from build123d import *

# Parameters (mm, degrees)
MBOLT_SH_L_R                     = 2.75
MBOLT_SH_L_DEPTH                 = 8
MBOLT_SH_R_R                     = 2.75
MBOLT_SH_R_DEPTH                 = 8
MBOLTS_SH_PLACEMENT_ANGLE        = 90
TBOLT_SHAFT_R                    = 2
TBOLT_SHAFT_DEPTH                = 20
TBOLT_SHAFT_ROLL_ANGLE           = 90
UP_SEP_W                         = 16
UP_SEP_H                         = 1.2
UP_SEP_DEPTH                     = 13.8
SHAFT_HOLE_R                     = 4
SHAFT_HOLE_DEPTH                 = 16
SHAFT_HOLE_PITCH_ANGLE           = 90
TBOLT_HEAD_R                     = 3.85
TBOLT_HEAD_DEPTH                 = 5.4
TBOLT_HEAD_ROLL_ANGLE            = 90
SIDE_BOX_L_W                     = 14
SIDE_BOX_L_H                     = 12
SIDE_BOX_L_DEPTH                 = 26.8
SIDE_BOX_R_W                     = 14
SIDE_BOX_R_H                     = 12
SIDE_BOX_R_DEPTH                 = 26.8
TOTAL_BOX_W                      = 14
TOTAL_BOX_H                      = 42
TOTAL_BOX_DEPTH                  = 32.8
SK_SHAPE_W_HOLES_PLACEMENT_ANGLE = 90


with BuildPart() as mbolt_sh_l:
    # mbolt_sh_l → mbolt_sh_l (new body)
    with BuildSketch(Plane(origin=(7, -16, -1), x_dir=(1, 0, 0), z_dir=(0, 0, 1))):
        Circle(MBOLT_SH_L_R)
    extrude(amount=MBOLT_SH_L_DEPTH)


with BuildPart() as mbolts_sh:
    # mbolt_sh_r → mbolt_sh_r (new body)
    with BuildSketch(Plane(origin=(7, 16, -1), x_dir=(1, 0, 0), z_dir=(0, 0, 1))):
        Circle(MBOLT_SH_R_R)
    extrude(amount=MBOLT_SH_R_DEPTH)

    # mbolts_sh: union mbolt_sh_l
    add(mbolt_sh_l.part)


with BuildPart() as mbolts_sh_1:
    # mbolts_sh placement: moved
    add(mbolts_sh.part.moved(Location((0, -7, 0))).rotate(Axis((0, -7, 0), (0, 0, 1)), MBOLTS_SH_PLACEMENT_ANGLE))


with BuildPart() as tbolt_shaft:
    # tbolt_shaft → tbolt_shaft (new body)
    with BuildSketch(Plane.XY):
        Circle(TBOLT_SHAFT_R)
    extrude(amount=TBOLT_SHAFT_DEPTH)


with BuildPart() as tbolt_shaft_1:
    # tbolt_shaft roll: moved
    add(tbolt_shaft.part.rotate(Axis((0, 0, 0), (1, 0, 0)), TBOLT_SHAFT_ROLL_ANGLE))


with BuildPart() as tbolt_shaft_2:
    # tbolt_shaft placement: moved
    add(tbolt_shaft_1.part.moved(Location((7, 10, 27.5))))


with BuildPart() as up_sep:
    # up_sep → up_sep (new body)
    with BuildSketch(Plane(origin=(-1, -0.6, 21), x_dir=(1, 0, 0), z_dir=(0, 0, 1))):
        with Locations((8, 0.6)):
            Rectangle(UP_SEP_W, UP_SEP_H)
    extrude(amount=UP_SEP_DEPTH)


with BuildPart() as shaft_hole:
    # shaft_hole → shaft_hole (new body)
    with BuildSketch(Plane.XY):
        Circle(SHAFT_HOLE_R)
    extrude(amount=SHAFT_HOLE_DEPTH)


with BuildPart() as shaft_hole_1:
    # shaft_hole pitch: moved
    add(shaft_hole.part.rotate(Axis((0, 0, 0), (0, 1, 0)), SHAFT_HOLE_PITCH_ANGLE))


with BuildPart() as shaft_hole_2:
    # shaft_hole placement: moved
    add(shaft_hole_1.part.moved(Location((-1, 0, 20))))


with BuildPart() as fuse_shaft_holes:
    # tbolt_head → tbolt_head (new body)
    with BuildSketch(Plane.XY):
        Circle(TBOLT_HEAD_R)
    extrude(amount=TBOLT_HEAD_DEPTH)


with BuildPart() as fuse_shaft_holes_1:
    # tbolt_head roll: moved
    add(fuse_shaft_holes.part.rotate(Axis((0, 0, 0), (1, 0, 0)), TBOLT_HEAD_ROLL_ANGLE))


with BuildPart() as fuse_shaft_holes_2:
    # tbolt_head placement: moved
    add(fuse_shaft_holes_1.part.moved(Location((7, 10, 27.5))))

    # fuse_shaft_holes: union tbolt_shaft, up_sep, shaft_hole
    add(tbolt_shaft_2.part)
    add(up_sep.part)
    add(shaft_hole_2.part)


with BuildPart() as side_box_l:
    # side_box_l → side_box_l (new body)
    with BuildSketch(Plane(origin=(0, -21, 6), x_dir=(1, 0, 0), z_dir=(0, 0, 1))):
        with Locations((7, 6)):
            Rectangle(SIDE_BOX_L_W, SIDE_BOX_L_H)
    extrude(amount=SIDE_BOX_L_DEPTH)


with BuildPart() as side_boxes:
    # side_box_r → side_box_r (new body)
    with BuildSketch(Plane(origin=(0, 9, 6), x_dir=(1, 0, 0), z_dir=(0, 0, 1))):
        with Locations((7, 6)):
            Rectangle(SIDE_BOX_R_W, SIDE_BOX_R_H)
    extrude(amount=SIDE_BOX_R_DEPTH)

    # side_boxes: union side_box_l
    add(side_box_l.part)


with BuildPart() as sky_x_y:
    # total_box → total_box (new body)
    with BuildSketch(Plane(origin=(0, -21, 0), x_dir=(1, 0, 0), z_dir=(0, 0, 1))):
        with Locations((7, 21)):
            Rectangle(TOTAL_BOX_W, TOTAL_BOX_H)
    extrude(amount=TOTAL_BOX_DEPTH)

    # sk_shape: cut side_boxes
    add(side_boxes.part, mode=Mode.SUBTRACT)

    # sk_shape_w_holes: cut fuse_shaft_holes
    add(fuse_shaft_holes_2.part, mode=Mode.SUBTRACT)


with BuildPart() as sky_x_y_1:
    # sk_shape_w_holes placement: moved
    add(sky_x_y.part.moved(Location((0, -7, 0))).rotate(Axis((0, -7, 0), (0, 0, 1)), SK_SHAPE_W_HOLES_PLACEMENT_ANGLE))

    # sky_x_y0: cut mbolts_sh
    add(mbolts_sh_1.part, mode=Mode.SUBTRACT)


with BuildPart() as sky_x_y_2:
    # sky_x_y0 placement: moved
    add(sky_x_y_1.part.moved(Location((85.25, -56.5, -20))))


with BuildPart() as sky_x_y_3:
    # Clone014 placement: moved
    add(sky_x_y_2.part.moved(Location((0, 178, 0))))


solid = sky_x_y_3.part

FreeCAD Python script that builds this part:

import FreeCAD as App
import Part
import Sketcher


def add_polygon(sketch, points):
    """Adds a closed chain of lines whose ends are joined by coincident constraints."""
    first, n = sketch.GeometryCount, len(points)
    for a, b in zip(points, points[1:] + points[:1]):
        sketch.addGeometry(Part.LineSegment(App.Vector(*a, 0), App.Vector(*b, 0)), False)
    for i in range(n):
        sketch.addConstraint(Sketcher.Constraint("Coincident", first + i, 2, first + (i + 1) % n, 1))

doc = App.newDocument("Part")
body = doc.addObject("PartDesign::Body", "Body")

# Sketch on XY plane
sketch1 = body.newObject("Sketcher::SketchObject", "Sketch")
sketch1.AttachmentSupport = (doc.getObject("XY_Plane"), [""])
sketch1.MapMode = "FlatFace"
sketch1.AttachmentOffset = App.Placement(App.Vector(0, 0, -1), App.Rotation())
sketch1.addGeometry(Part.Circle(App.Vector(7, -16, 0), App.Vector(0, 0, 1), 2.75), False)
sketch1.addConstraint([
    Sketcher.Constraint("Diameter", 0, 5.5),
    Sketcher.Constraint("DistanceX", -1, 1, 0, 3, 7.0),
    Sketcher.Constraint("DistanceY", 0, 3, -1, 1, 16.0),
])
pad1 = body.newObject("PartDesign::Pad", "Pad")
pad1.Profile = sketch1
pad1.Length = 8
body2 = doc.addObject("PartDesign::Body", "Body001")
body2.AllowCompound = True

# Sketch on XY plane
sketch2 = body2.newObject("Sketcher::SketchObject", "Sketch001")
sketch2.AttachmentSupport = (doc.getObject("XY_Plane001"), [""])
sketch2.MapMode = "FlatFace"
sketch2.AttachmentOffset = App.Placement(App.Vector(0, 0, -1), App.Rotation())
sketch2.addGeometry(Part.Circle(App.Vector(7, 16, 0), App.Vector(0, 0, 1), 2.75), False)
sketch2.addConstraint([
    Sketcher.Constraint("Diameter", 0, 5.5),
    Sketcher.Constraint("DistanceX", -1, 1, 0, 3, 7.0),
    Sketcher.Constraint("DistanceY", -1, 1, 0, 3, 16.0),
])
pad2 = body2.newObject("PartDesign::Pad", "Pad001")
pad2.Profile = sketch2
pad2.Length = 8
doc.recompute()

boolean = body2.newObject("PartDesign::Boolean", "Boolean")
boolean.Type = "Fuse"
boolean.addObjects([body])
body3 = doc.addObject("PartDesign::Body", "Body002")
body3.AllowCompound = True
doc.recompute()

body2.Placement = App.Placement(App.Vector(0, -7, 0), App.Rotation(App.Vector(0, 0, 1), 90))
boolean2 = body3.newObject("PartDesign::Boolean", "Boolean001")
boolean2.Type = "Fuse"
boolean2.addObjects([body2])
body4 = doc.addObject("PartDesign::Body", "Body003")

# Sketch on XY plane
sketch3 = body4.newObject("Sketcher::SketchObject", "Sketch002")
sketch3.AttachmentSupport = (doc.getObject("XY_Plane003"), [""])
sketch3.MapMode = "FlatFace"
sketch3.addGeometry(Part.Circle(App.Vector(0, 0, 0), App.Vector(0, 0, 1), 2), False)
sketch3.addConstraint([
    Sketcher.Constraint("Coincident", 0, 3, -1, 1),
    Sketcher.Constraint("Diameter", 0, 4.0),
])
pad3 = body4.newObject("PartDesign::Pad", "Pad002")
pad3.Profile = sketch3
pad3.Length = 20
body5 = doc.addObject("PartDesign::Body", "Body004")
doc.recompute()

body4.Placement = App.Placement(App.Vector(0, 0, 0), App.Rotation(App.Vector(1, 0, 0), 90))
boolean3 = body5.newObject("PartDesign::Boolean", "Boolean002")
boolean3.Type = "Fuse"
boolean3.addObjects([body4])
body6 = doc.addObject("PartDesign::Body", "Body005")
doc.recompute()

body5.Placement = App.Placement(App.Vector(7, 10, 27.5), App.Rotation(App.Vector(0, 0, 1), 0))
boolean4 = body6.newObject("PartDesign::Boolean", "Boolean003")
boolean4.Type = "Fuse"
boolean4.addObjects([body5])
body7 = doc.addObject("PartDesign::Body", "Body006")

# Sketch on XY plane
sketch4 = body7.newObject("Sketcher::SketchObject", "Sketch003")
sketch4.AttachmentSupport = (doc.getObject("XY_Plane006"), [""])
sketch4.MapMode = "FlatFace"
sketch4.AttachmentOffset = App.Placement(App.Vector(0, 0, 21), App.Rotation())
add_polygon(sketch4, [(-1, 0.6), (-1, -0.6), (15, -0.6), (15, 0.6)])  # lines 0-3
sketch4.addConstraint([
    Sketcher.Constraint("Vertical", 0),
    Sketcher.Constraint("Horizontal", 1),
    Sketcher.Constraint("Vertical", 2),
    Sketcher.Constraint("Horizontal", 3),
    Sketcher.Constraint("DistanceX", 1, 1, 1, 2, 16.0),
    Sketcher.Constraint("DistanceY", 0, 2, 0, 1, 1.2),
    Sketcher.Constraint("DistanceX", 0, 2, -1, 1, 1.0),
    Sketcher.Constraint("DistanceY", 0, 2, -1, 1, 0.6),
])
pad4 = body7.newObject("PartDesign::Pad", "Pad003")
pad4.Profile = sketch4
pad4.Length = 13.8
body8 = doc.addObject("PartDesign::Body", "Body007")

# Sketch on XY plane
sketch5 = body8.newObject("Sketcher::SketchObject", "Sketch004")
sketch5.AttachmentSupport = (doc.getObject("XY_Plane007"), [""])
sketch5.MapMode = "FlatFace"
sketch5.addGeometry(Part.Circle(App.Vector(0, 0, 0), App.Vector(0, 0, 1), 4), False)
sketch5.addConstraint([
    Sketcher.Constraint("Coincident", 0, 3, -1, 1),
    Sketcher.Constraint("Diameter", 0, 8.0),
])
pad5 = body8.newObject("PartDesign::Pad", "Pad004")
pad5.Profile = sketch5
pad5.Length = 16
body9 = doc.addObject("PartDesign::Body", "Body008")
doc.recompute()

body8.Placement = App.Placement(App.Vector(0, 0, 0), App.Rotation(App.Vector(0, 1, 0), 90))
boolean5 = body9.newObject("PartDesign::Boolean", "Boolean004")
boolean5.Type = "Fuse"
boolean5.addObjects([body8])
body10 = doc.addObject("PartDesign::Body", "Body009")
doc.recompute()

body9.Placement = App.Placement(App.Vector(-1, 0, 20), App.Rotation(App.Vector(0, 0, 1), 0))
boolean6 = body10.newObject("PartDesign::Boolean", "Boolean005")
boolean6.Type = "Fuse"
boolean6.addObjects([body9])
body11 = doc.addObject("PartDesign::Body", "Body010")

# Sketch on XY plane
sketch6 = body11.newObject("Sketcher::SketchObject", "Sketch005")
sketch6.AttachmentSupport = (doc.getObject("XY_Plane010"), [""])
sketch6.MapMode = "FlatFace"
sketch6.addGeometry(Part.Circle(App.Vector(0, 0, 0), App.Vector(0, 0, 1), 3.85), False)
sketch6.addConstraint([
    Sketcher.Constraint("Coincident", 0, 3, -1, 1),
    Sketcher.Constraint("Diameter", 0, 7.7),
])
pad6 = body11.newObject("PartDesign::Pad", "Pad005")
pad6.Profile = sketch6
pad6.Length = 5.4
body12 = doc.addObject("PartDesign::Body", "Body011")
doc.recompute()

body11.Placement = App.Placement(App.Vector(0, 0, 0), App.Rotation(App.Vector(1, 0, 0), 90))
boolean7 = body12.newObject("PartDesign::Boolean", "Boolean006")
boolean7.Type = "Fuse"
boolean7.addObjects([body11])
body13 = doc.addObject("PartDesign::Body", "Body012")
doc.recompute()

body12.Placement = App.Placement(App.Vector(7, 10, 27.5), App.Rotation(App.Vector(0, 0, 1), 0))
boolean8 = body13.newObject("PartDesign::Boolean", "Boolean007")
boolean8.Type = "Fuse"
boolean8.addObjects([body12])
doc.recompute()

boolean9 = body13.newObject("PartDesign::Boolean", "Boolean008")
boolean9.Type = "Fuse"
boolean9.addObjects([body6])
doc.recompute()

boolean10 = body13.newObject("PartDesign::Boolean", "Boolean009")
boolean10.Type = "Fuse"
boolean10.addObjects([body7])
doc.recompute()

boolean11 = body13.newObject("PartDesign::Boolean", "Boolean010")
boolean11.Type = "Fuse"
boolean11.addObjects([body10])
body14 = doc.addObject("PartDesign::Body", "Body013")

# Sketch on XY plane
sketch7 = body14.newObject("Sketcher::SketchObject", "Sketch006")
sketch7.AttachmentSupport = (doc.getObject("XY_Plane013"), [""])
sketch7.MapMode = "FlatFace"
sketch7.AttachmentOffset = App.Placement(App.Vector(0, 0, 6), App.Rotation())
add_polygon(sketch7, [(0, -9), (0, -21), (14, -21), (14, -9)])  # lines 0-3
sketch7.addConstraint([
    Sketcher.Constraint("Vertical", 0),
    Sketcher.Constraint("Horizontal", 1),
    Sketcher.Constraint("Vertical", 2),
    Sketcher.Constraint("Horizontal", 3),
    Sketcher.Constraint("PointOnObject", 0, 2, -2),
    Sketcher.Constraint("DistanceX", 1, 1, 1, 2, 14.0),
    Sketcher.Constraint("DistanceY", 0, 2, 0, 1, 12.0),
    Sketcher.Constraint("DistanceY", 0, 2, -1, 1, 21.0),
])
pad7 = body14.newObject("PartDesign::Pad", "Pad006")
pad7.Profile = sketch7
pad7.Length = 26.8
body15 = doc.addObject("PartDesign::Body", "Body014")
body15.AllowCompound = True

# Sketch on XY plane
sketch8 = body15.newObject("Sketcher::SketchObject", "Sketch007")
sketch8.AttachmentSupport = (doc.getObject("XY_Plane014"), [""])
sketch8.MapMode = "FlatFace"
sketch8.AttachmentOffset = App.Placement(App.Vector(0, 0, 6), App.Rotation())
add_polygon(sketch8, [(0, 21), (0, 9), (14, 9), (14, 21)])  # lines 0-3
sketch8.addConstraint([
    Sketcher.Constraint("Vertical", 0),
    Sketcher.Constraint("Horizontal", 1),
    Sketcher.Constraint("Vertical", 2),
    Sketcher.Constraint("Horizontal", 3),
    Sketcher.Constraint("PointOnObject", 0, 2, -2),
    Sketcher.Constraint("DistanceX", 1, 1, 1, 2, 14.0),
    Sketcher.Constraint("DistanceY", 0, 2, 0, 1, 12.0),
    Sketcher.Constraint("DistanceY", -1, 1, 0, 2, 9.0),
])
pad8 = body15.newObject("PartDesign::Pad", "Pad007")
pad8.Profile = sketch8
pad8.Length = 26.8
doc.recompute()

boolean12 = body15.newObject("PartDesign::Boolean", "Boolean011")
boolean12.Type = "Fuse"
boolean12.addObjects([body14])
body16 = doc.addObject("PartDesign::Body", "Body015")

# Sketch on XY plane
sketch9 = body16.newObject("Sketcher::SketchObject", "Sketch008")
sketch9.AttachmentSupport = (doc.getObject("XY_Plane015"), [""])
sketch9.MapMode = "FlatFace"
add_polygon(sketch9, [(0, 21), (0, -21), (14, -21), (14, 21)])  # lines 0-3
sketch9.addConstraint([
    Sketcher.Constraint("Vertical", 0),
    Sketcher.Constraint("Horizontal", 1),
    Sketcher.Constraint("Vertical", 2),
    Sketcher.Constraint("Horizontal", 3),
    Sketcher.Constraint("Symmetric", 0, 2, 3, 2, -1, 1),
    Sketcher.Constraint("DistanceX", 1, 1, 1, 2, 14.0),
    Sketcher.Constraint("DistanceY", 0, 2, 0, 1, 42.0),
])
pad9 = body16.newObject("PartDesign::Pad", "Pad008")
pad9.Profile = sketch9
pad9.Length = 32.8
doc.recompute()

boolean13 = body16.newObject("PartDesign::Boolean", "Boolean012")
boolean13.Type = "Cut"
boolean13.addObjects([body15])
doc.recompute()

boolean14 = body16.newObject("PartDesign::Boolean", "Boolean013")
boolean14.Type = "Cut"
boolean14.addObjects([body13])
body17 = doc.addObject("PartDesign::Body", "Body016")
doc.recompute()

body16.Placement = App.Placement(App.Vector(0, -7, 0), App.Rotation(App.Vector(0, 0, 1), 90))
boolean15 = body17.newObject("PartDesign::Boolean", "Boolean014")
boolean15.Type = "Fuse"
boolean15.addObjects([body16])
doc.recompute()

boolean16 = body17.newObject("PartDesign::Boolean", "Boolean015")
boolean16.Type = "Cut"
boolean16.addObjects([body3])
body18 = doc.addObject("PartDesign::Body", "Body017")
doc.recompute()

body17.Placement = App.Placement(App.Vector(85.25, -56.5, -20), App.Rotation(App.Vector(0, 0, 1), 0))
boolean17 = body18.newObject("PartDesign::Boolean", "Boolean016")
boolean17.Type = "Fuse"
boolean17.addObjects([body17])
body19 = doc.addObject("PartDesign::Body", "Body018")
doc.recompute()

body18.Placement = App.Placement(App.Vector(0, 178, 0), App.Rotation(App.Vector(0, 0, 1), 0))
boolean18 = body19.newObject("PartDesign::Boolean", "Boolean017")
boolean18.Type = "Fuse"
boolean18.addObjects([body18])

doc.recompute()
